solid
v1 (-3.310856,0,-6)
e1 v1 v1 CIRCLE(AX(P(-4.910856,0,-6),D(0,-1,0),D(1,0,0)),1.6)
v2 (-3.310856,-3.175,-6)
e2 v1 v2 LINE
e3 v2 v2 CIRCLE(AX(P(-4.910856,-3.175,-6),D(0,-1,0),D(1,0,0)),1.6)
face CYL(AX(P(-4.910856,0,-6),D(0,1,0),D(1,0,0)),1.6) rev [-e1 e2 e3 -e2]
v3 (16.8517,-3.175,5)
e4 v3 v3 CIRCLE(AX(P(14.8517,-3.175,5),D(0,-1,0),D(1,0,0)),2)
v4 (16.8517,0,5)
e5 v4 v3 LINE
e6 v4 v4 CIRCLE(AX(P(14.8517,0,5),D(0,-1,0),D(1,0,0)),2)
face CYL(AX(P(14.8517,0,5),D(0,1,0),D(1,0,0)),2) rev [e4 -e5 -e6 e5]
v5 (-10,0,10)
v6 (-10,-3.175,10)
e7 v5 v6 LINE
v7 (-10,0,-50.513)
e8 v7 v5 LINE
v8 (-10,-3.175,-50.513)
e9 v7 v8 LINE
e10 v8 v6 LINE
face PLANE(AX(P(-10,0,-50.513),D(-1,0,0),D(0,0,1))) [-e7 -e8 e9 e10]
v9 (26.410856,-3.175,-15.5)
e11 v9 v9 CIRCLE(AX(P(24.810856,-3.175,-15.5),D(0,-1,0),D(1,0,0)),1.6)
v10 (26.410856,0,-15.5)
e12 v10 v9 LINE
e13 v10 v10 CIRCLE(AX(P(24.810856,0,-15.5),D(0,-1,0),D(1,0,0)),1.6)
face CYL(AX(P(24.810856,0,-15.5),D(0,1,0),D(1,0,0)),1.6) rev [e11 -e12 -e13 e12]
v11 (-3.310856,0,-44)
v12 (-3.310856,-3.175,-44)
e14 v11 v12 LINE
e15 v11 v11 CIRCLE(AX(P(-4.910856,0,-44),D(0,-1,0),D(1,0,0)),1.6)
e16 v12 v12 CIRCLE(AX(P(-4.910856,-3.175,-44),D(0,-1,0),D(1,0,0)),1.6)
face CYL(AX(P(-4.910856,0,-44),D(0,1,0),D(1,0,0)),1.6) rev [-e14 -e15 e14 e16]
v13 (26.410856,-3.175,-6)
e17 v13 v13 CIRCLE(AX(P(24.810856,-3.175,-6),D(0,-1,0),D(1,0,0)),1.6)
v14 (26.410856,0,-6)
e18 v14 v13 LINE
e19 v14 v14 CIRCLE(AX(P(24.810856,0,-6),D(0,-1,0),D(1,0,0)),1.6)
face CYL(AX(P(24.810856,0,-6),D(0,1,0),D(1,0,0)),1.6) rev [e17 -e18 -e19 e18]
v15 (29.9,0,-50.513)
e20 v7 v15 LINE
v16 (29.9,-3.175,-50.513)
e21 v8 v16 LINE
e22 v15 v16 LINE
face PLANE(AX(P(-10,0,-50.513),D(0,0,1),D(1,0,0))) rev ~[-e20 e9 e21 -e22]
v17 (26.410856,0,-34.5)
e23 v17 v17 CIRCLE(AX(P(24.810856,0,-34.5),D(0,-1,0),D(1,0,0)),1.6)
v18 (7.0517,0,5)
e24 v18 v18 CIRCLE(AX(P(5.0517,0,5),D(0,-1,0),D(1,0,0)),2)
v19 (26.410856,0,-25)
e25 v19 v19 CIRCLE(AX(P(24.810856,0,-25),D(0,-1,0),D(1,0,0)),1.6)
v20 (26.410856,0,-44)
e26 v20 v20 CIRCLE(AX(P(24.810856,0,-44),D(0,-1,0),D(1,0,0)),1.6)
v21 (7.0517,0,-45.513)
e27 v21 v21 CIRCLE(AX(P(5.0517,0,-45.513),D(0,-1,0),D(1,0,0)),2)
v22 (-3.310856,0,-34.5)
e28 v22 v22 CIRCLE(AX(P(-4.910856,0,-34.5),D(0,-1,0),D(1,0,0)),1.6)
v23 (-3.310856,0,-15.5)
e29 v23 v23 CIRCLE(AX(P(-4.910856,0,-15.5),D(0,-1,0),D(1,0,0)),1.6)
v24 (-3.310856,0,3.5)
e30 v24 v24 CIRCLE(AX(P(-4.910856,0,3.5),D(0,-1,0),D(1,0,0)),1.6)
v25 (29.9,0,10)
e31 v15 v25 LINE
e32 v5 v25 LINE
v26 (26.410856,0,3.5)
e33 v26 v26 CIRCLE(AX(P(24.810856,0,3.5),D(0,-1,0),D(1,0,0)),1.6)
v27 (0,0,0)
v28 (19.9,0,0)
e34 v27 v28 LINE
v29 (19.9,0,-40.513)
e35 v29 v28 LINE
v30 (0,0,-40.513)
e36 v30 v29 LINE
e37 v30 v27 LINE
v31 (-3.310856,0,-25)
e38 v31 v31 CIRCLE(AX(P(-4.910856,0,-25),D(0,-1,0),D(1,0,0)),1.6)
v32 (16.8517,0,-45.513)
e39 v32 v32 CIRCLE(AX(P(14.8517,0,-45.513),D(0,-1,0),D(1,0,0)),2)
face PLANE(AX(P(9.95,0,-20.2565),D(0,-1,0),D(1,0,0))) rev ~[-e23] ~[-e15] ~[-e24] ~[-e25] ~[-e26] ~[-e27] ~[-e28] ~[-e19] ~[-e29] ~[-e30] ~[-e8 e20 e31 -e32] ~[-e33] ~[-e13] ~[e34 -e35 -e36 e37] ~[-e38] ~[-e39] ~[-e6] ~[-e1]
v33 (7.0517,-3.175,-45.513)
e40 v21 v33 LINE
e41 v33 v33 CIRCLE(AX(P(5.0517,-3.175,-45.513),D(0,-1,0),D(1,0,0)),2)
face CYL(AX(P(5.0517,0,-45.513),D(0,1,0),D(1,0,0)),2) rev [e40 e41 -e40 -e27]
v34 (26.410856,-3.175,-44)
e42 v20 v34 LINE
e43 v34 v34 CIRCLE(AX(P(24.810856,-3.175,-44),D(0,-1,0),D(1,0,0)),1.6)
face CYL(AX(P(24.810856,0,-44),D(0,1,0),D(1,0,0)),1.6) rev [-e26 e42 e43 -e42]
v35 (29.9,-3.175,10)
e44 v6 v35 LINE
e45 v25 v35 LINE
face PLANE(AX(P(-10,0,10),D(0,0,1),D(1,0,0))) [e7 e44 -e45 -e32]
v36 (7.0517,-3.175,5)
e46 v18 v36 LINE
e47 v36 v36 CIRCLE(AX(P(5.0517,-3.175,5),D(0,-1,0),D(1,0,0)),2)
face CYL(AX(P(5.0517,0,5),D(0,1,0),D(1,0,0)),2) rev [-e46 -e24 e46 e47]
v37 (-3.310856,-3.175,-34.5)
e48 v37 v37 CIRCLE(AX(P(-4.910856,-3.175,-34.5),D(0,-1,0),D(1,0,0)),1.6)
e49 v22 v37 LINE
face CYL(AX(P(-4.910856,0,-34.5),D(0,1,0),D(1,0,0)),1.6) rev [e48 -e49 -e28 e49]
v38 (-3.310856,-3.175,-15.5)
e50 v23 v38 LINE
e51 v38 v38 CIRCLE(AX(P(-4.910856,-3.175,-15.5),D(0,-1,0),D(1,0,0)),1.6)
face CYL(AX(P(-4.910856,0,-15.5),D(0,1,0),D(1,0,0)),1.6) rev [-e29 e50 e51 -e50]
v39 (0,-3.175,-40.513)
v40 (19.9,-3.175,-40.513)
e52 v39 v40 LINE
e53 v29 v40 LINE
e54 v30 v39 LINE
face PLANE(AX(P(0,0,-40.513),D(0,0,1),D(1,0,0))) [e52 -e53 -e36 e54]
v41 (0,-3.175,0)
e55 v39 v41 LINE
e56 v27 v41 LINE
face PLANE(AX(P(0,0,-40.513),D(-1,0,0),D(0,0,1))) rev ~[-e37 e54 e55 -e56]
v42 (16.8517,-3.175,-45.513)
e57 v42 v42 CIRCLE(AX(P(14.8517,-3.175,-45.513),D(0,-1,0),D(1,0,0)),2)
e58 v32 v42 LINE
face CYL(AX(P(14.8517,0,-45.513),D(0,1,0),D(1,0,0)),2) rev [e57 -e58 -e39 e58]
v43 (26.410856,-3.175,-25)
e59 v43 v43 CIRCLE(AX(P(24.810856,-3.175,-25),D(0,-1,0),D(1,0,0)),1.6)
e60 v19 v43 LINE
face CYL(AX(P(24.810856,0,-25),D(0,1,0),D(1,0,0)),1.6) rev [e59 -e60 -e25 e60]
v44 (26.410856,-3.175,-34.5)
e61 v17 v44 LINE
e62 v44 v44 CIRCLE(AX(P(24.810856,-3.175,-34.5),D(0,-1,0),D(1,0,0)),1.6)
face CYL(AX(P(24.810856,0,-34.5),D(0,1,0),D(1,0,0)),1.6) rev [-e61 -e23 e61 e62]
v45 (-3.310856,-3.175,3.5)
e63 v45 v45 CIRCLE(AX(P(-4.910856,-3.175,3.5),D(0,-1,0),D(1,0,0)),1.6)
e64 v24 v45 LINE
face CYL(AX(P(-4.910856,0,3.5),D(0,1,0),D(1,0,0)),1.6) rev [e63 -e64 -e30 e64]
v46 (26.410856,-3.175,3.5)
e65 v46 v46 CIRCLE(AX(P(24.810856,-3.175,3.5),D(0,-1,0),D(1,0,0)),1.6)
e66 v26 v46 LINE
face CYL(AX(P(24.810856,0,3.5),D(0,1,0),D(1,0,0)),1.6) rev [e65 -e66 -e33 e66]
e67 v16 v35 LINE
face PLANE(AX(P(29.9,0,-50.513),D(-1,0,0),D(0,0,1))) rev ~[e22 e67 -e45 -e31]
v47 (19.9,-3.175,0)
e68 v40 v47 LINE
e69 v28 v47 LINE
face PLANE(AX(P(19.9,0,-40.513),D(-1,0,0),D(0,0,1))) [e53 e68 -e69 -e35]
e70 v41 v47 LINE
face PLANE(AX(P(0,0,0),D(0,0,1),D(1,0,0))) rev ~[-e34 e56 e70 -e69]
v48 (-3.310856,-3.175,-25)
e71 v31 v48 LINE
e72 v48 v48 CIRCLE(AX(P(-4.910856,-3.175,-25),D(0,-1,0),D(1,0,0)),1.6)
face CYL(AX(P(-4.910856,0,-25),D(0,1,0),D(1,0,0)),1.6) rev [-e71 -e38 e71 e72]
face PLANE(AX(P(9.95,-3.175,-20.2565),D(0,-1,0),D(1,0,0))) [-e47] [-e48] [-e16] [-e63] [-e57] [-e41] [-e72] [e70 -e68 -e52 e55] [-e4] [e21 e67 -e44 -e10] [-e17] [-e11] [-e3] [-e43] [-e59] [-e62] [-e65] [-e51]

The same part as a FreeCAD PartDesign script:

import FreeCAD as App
import Part
import Sketcher

V = App.Vector
Q = App.Units.Quantity

doc = App.newDocument("Part")
params = doc.addObject("Spreadsheet::Sheet", "Params")
for row, (alias, value) in enumerate([
    ("sketch1_diameter", "4 mm"),
    ("sketch1_diameter2", "3.2 mm"),
    ("sketch1_width", "39.9 mm"),
    ("sketch1_width2", "19.9 mm"),
    ("pad1_length", "3.175 mm"),
], start=1):
    params.set(f"A{row}", alias)
    params.set(f"B{row}", "=" + value)
    params.setAlias(f"B{row}", alias)

body = doc.addObject("PartDesign::Body", "Body")

# Sketch on XZ plane
sketch1 = body.newObject("Sketcher::SketchObject", "Sketch")
sketch1.AttachmentSupport = (doc.getObject("XZ_Plane"), [""])
sketch1.MapMode = "FlatFace"
sketch1.addGeometry(Part.LineSegment(V(-10, 10, 0), V(-10, -50.5, 0)), False)
sketch1.addGeometry(Part.LineSegment(V(-10, -50.5, 0), V(29.9, -50.5, 0)), False)
sketch1.addGeometry(Part.LineSegment(V(29.9, -50.5, 0), V(29.9, 10, 0)), False)
sketch1.addGeometry(Part.LineSegment(V(29.9, 10, 0), V(-10, 10, 0)), False)
sketch1.addGeometry(Part.Circle(V(-4.9, -44, 0), V(0, 0, 1), 1.6), False)
sketch1.addGeometry(Part.Circle(V(-4.9, -34.5, 0), V(0, 0, 1), 1.6), False)
sketch1.addGeometry(Part.Circle(V(5.1, -45.5, 0), V(0, 0, 1), 2), False)
sketch1.addGeometry(Part.Circle(V(-4.9, -25, 0), V(0, 0, 1), 1.6), False)
sketch1.addGeometry(Part.Circle(V(14.9, -45.5, 0), V(0, 0, 1), 2), False)
sketch1.addGeometry(Part.Circle(V(24.8, -44, 0), V(0, 0, 1), 1.6), False)
sketch1.addGeometry(Part.Circle(V(24.8, -34.5, 0), V(0, 0, 1), 1.6), False)
sketch1.addGeometry(Part.Circle(V(24.8, -25, 0), V(0, 0, 1), 1.6), False)
sketch1.addGeometry(Part.Circle(V(-4.9, -15.5, 0), V(0, 0, 1), 1.6), False)
sketch1.addGeometry(Part.Circle(V(-4.9, -6, 0), V(0, 0, 1), 1.6), False)
sketch1.addGeometry(Part.Circle(V(-4.9, 3.5, 0), V(0, 0, 1), 1.6), False)
sketch1.addGeometry(Part.Circle(V(5.1, 5, 0), V(0, 0, 1), 2), False)
sketch1.addGeometry(Part.LineSegment(V(19.9, -40.5, 0), V(0, -40.5, 0)), False)
sketch1.addGeometry(Part.LineSegment(V(0, -40.5, 0), V(0, 0, 0)), False)
sketch1.addGeometry(Part.LineSegment(V(0, 0, 0), V(19.9, 0, 0)), False)
sketch1.addGeometry(Part.LineSegment(V(19.9, 0, 0), V(19.9, -40.5, 0)), False)
sketch1.addGeometry(Part.Circle(V(24.8, -15.5, 0), V(0, 0, 1), 1.6), False)
sketch1.addGeometry(Part.Circle(V(14.9, 5, 0), V(0, 0, 1), 2), False)
sketch1.addGeometry(Part.Circle(V(24.8, -6, 0), V(0, 0, 1), 1.6), False)
sketch1.addGeometry(Part.Circle(V(24.8, 3.5, 0), V(0, 0, 1), 1.6), False)
sketch1.addConstraint(Sketcher.Constraint("Coincident", 0, 2, 1, 1))
sketch1.addConstraint(Sketcher.Constraint("Coincident", 1, 2, 2, 1))
sketch1.addConstraint(Sketcher.Constraint("Coincident", 2, 2, 3, 1))
sketch1.addConstraint(Sketcher.Constraint("Coincident", 3, 2, 0, 1))
sketch1.addConstraint(Sketcher.Constraint("Coincident", 16, 2, 17, 1))
sketch1.addConstraint(Sketcher.Constraint("Coincident", 17, 2, 18, 1))
sketch1.addConstraint(Sketcher.Constraint("Coincident", 18, 2, 19, 1))
sketch1.addConstraint(Sketcher.Constraint("Coincident", 19, 2, 16, 1))
sketch1.addConstraint(Sketcher.Constraint("Vertical", 0))
sketch1.addConstraint(Sketcher.Constraint("Horizontal", 1))
sketch1.addConstraint(Sketcher.Constraint("Vertical", 2))
sketch1.addConstraint(Sketcher.Constraint("Horizontal", 3))
sketch1.addConstraint(Sketcher.Constraint("Horizontal", 16))
sketch1.addConstraint(Sketcher.Constraint("Vertical", 17))
sketch1.addConstraint(Sketcher.Constraint("Horizontal", 18))
sketch1.addConstraint(Sketcher.Constraint("Vertical", 19))
sketch1.addConstraint(Sketcher.Constraint("Coincident", 17, 2, -1, 1))
sketch1.addConstraint(Sketcher.Constraint("Equal", 4, 5))
sketch1.addConstraint(Sketcher.Constraint("Equal", 5, 7))
sketch1.addConstraint(Sketcher.Constraint("Equal", 6, 8))
sketch1.addConstraint(Sketcher.Constraint("Equal", 7, 9))
sketch1.addConstraint(Sketcher.Constraint("Equal", 9, 10))
sketch1.addConstraint(Sketcher.Constraint("Equal", 10, 11))
sketch1.addConstraint(Sketcher.Constraint("Equal", 11, 12))
sketch1.addConstraint(Sketcher.Constraint("Equal", 12, 13))
sketch1.addConstraint(Sketcher.Constraint("Equal", 13, 14))
sketch1.addConstraint(Sketcher.Constraint("Equal", 8, 15))
sketch1.addConstraint(Sketcher.Constraint("Equal", 14, 20))
sketch1.addConstraint(Sketcher.Constraint("Equal", 15, 21))
sketch1.addConstraint(Sketcher.Constraint("Equal", 20, 22))
sketch1.addConstraint(Sketcher.Constraint("Equal", 22, 23))
sketch1.addConstraint(Sketcher.Constraint("Horizontal", 6, 3, 8, 3))
sketch1.addConstraint(Sketcher.Constraint("Horizontal", 4, 3, 9, 3))
sketch1.addConstraint(Sketcher.Constraint("Horizontal", 5, 3, 10, 3))
sketch1.addConstraint(Sketcher.Constraint("Horizontal", 7, 3, 11, 3))
sketch1.addConstraint(Sketcher.Constraint("Horizontal", 12, 3, 20, 3))
sketch1.addConstraint(Sketcher.Constraint("Horizontal", 15, 3, 21, 3))
sketch1.addConstraint(Sketcher.Constraint("Horizontal", 13, 3, 22, 3))
sketch1.addConstraint(Sketcher.Constraint("Horizontal", 14, 3, 23, 3))
sketch1.addConstraint(Sketcher.Constraint("Vertical", 4, 3, 5, 3))
sketch1.addConstraint(Sketcher.Constraint("Vertical", 5, 3, 7, 3))
sketch1.addConstraint(Sketcher.Constraint("Vertical", 9, 3, 10, 3))
sketch1.addConstraint(Sketcher.Constraint("Vertical", 10, 3, 11, 3))
sketch1.addConstraint(Sketcher.Constraint("Vertical", 7, 3, 12, 3))
sketch1.addConstraint(Sketcher.Constraint("Vertical", 12, 3, 13, 3))
sketch1.addConstraint(Sketcher.Constraint("Vertical", 13, 3, 14, 3))
sketch1.addConstraint(Sketcher.Constraint("Vertical", 6, 3, 15, 3))
sketch1.addConstraint(Sketcher.Constraint("Vertical", 11, 3, 20, 3))
sketch1.addConstraint(Sketcher.Constraint("Vertical", 8, 3, 21, 3))
sketch1.addConstraint(Sketcher.Constraint("Vertical", 20, 3, 22, 3))
sketch1.addConstraint(Sketcher.Constraint("Vertical", 22, 3, 23, 3))
sketch1.addConstraint(Sketcher.Constraint("Diameter", 6, Q("4 mm")))
sketch1.addConstraint(Sketcher.Constraint("Diameter", 4, Q("3.2 mm")))
sketch1.addConstraint(Sketcher.Constraint("DistanceX", 1, 1, 1, 2, Q("39.9 mm")))
sketch1.addConstraint(Sketcher.Constraint("DistanceX", 16, 2, 16, 1, Q("19.9 mm")))
sketch1.addConstraint(Sketcher.Constraint("DistanceY", 4, 3, -1, 1, Q("44 mm")))
sketch1.addConstraint(Sketcher.Constraint("DistanceY", 7, 3, -1, 1, Q("25 mm")))
sketch1.addConstraint(Sketcher.Constraint("DistanceY", 13, 3, -1, 1, Q("6 mm")))
sketch1.addConstraint(Sketcher.Constraint("DistanceY", -1, 1, 15, 3, Q("5 mm")))
sketch1.addConstraint(Sketcher.Constraint("DistanceX", 0, 2, -1, 1, Q("10 mm")))
sketch1.addConstraint(Sketcher.Constraint("DistanceY", -1, 1, 2, 2, Q("10 mm")))
sketch1.addConstraint(Sketcher.Constraint("DistanceY", 5, 3, 12, 3, Q("19 mm")))
sketch1.addConstraint(Sketcher.Constraint("DistanceY", 12, 3, 14, 3, Q("19 mm")))
sketch1.addConstraint(Sketcher.Constraint("DistanceY", 0, 2, 6, 3, Q("5 mm")))
sketch1.addConstraint(Sketcher.Constraint("DistanceY", 6, 3, 16, 2, Q("5 mm")))
sketch1.addConstraint(Sketcher.Constraint("DistanceY", 5, 3, -1, 1, Q("34.5 mm")))
sketch1.addConstraint(Sketcher.Constraint("DistanceX", 6, 3, 8, 3, Q("9.8 mm")))
sketch1.addConstraint(Sketcher.Constraint("DistanceY", 0, 2, 0, 1, Q("60.513 mm")))
sketch1.addConstraint(Sketcher.Constraint("DistanceX", -1, 1, 6, 3, Q("5.0517 mm")))
sketch1.addConstraint(Sketcher.Constraint("DistanceX", 4, 3, 9, 3, Q("29.721712 mm")))
sketch1.addConstraint(Sketcher.Constraint("DistanceX", 4, 3, -1, 1, Q("4.910856 mm")))
sketch1.setExpression("Constraints[51]", "Params.sketch1_diameter")
sketch1.setExpression("Constraints[52]", "Params.sketch1_diameter2")
sketch1.setExpression("Constraints[53]", "Params.sketch1_width")
sketch1.setExpression("Constraints[54]", "Params.sketch1_width2")
pad1 = body.newObject("PartDesign::Pad", "Pad")
pad1.Profile = sketch1
pad1.setExpression("Length", "Params.pad1_length")

doc.recompute()
